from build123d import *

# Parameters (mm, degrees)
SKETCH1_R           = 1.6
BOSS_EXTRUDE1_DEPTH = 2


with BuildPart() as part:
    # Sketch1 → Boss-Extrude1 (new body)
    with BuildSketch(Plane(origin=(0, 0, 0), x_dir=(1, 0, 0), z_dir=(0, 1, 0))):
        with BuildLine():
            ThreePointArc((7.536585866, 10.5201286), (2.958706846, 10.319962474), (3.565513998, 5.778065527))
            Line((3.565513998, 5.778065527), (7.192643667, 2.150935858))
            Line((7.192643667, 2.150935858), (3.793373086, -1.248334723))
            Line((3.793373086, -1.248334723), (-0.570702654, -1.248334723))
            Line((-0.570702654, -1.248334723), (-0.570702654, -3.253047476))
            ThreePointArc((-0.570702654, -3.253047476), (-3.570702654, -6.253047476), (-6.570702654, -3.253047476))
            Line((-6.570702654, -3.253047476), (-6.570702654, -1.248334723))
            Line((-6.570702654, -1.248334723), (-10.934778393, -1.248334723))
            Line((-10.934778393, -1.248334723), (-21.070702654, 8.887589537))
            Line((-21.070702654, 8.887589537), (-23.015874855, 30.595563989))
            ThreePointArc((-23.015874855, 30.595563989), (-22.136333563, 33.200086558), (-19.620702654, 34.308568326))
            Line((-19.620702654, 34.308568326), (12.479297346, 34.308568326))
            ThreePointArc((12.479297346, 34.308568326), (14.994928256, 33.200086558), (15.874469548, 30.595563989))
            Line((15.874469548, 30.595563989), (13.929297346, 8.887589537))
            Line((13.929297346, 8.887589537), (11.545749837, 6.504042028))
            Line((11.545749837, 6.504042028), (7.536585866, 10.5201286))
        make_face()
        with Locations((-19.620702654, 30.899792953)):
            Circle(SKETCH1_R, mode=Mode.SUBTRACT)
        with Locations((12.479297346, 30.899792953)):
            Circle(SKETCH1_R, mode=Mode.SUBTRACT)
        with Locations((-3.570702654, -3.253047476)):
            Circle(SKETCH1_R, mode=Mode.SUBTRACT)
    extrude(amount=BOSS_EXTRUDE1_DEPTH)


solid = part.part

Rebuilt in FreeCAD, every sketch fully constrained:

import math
import FreeCAD as App
import Part
import Sketcher
from FreeCAD import Vector
Q = App.Units.Quantity

doc = App.newDocument("Part")
body = doc.addObject("PartDesign::Body", "Body")

# Sketch on XZ plane
sketch1 = body.newObject("Sketcher::SketchObject", "Sketch")
sketch1.AttachmentSupport = (doc.getObject("XZ_Plane"), [""])
sketch1.MapMode = "FlatFace"
sketch1.addGeometry(Part.ArcOfCircle(Part.Circle(Vector(5.3, -8.3, 0), Vector(0, 0, 1), 3.1), math.radians(125), math.radians(315)), False)
sketch1.addGeometry(Part.LineSegment(Vector(7.5, -10.5, 0), Vector(11.5, -6.5, 0)), False)
sketch1.addGeometry(Part.LineSegment(Vector(11.5, -6.5, 0), Vector(13.9, -8.9, 0)), False)
sketch1.addGeometry(Part.LineSegment(Vector(13.9, -8.9, 0), Vector(15.9, -30.6, 0)), False)
sketch1.addGeometry(Part.ArcOfCircle(Part.Circle(Vector(12.5, -30.9, 0), Vector(0, 0, 1), 3.4), math.radians(-90), math.radians(5)), False)
sketch1.addGeometry(Part.LineSegment(Vector(12.5, -34.3, 0), Vector(-19.6, -34.3, 0)), False)
sketch1.addGeometry(Part.ArcOfCircle(Part.Circle(Vector(-19.6, -30.9, 0), Vector(0, 0, 1), 3.4), math.radians(175), math.radians(270)), False)
sketch1.addGeometry(Part.LineSegment(Vector(-23, -30.6, 0), Vector(-21.1, -8.9, 0)), False)
sketch1.addGeometry(Part.LineSegment(Vector(-21.1, -8.9, 0), Vector(-10.9, 1.2, 0)), False)
sketch1.addGeometry(Part.LineSegment(Vector(-10.9, 1.2, 0), Vector(-6.6, 1.2, 0)), False)
sketch1.addGeometry(Part.LineSegment(Vector(-6.6, 1.2, 0), Vector(-6.6, 3.3, 0)), False)
sketch1.addGeometry(Part.ArcOfCircle(Part.Circle(Vector(-3.6, 3.3, 0), Vector(0, 0, 1), 3), math.radians(0), math.radians(180)), False)
sketch1.addGeometry(Part.LineSegment(Vector(-0.6, 3.3, 0), Vector(-0.6, 1.2, 0)), False)
sketch1.addGeometry(Part.LineSegment(Vector(-0.6, 1.2, 0), Vector(3.8, 1.2, 0)), False)
sketch1.addGeometry(Part.LineSegment(Vector(3.8, 1.2, 0), Vector(7.2, -2.2, 0)), False)
sketch1.addGeometry(Part.LineSegment(Vector(7.2, -2.2, 0), Vector(3.6, -5.8, 0)), False)
sketch1.addGeometry(Part.Circle(Vector(-3.6, 3.3, 0), Vector(0, 0, 1), 1.6), False)
sketch1.addGeometry(Part.Circle(Vector(12.5, -30.9, 0), Vector(0, 0, 1), 1.6), False)
sketch1.addGeometry(Part.Circle(Vector(-19.6, -30.9, 0), Vector(0, 0, 1), 1.6), False)
sketch1.addConstraint(Sketcher.Constraint("Tangent", 0, 2, 1, 1))
sketch1.addConstraint(Sketcher.Constraint("Coincident", 1, 2, 2, 1))
sketch1.addConstraint(Sketcher.Constraint("Coincident", 2, 2, 3, 1))
sketch1.addConstraint(Sketcher.Constraint("Tangent", 3, 2, 4, 2))
sketch1.addConstraint(Sketcher.Constraint("Tangent", 4, 1, 5, 1))
sketch1.addConstraint(Sketcher.Constraint("Tangent", 5, 2, 6, 2))
sketch1.addConstraint(Sketcher.Constraint("Tangent", 6, 1, 7, 1))
sketch1.addConstraint(Sketcher.Constraint("Coincident", 7, 2, 8, 1))
sketch1.addConstraint(Sketcher.Constraint("Coincident", 8, 2, 9, 1))
sketch1.addConstraint(Sketcher.Constraint("Coincident", 9, 2, 10, 1))
sketch1.addConstraint(Sketcher.Constraint("Tangent", 10, 2, 11, 2))
sketch1.addConstraint(Sketcher.Constraint("Tangent", 11, 1, 12, 1))
sketch1.addConstraint(Sketcher.Constraint("Coincident", 12, 2, 13, 1))
sketch1.addConstraint(Sketcher.Constraint("Coincident", 13, 2, 14, 1))
sketch1.addConstraint(Sketcher.Constraint("Coincident", 14, 2, 15, 1))
sketch1.addConstraint(Sketcher.Constraint("Coincident", 15, 2, 0, 1))
sketch1.addConstraint(Sketcher.Constraint("Horizontal", 5))
sketch1.addConstraint(Sketcher.Constraint("Horizontal", 9))
sketch1.addConstraint(Sketcher.Constraint("Vertical", 10))
sketch1.addConstraint(Sketcher.Constraint("Vertical", 12))
sketch1.addConstraint(Sketcher.Constraint("Horizontal", 13))
sketch1.addConstraint(Sketcher.Constraint("Coincident", 16, 3, 11, 3))
sketch1.addConstraint(Sketcher.Constraint("Coincident", 17, 3, 4, 3))
sketch1.addConstraint(Sketcher.Constraint("Coincident", 18, 3, 6, 3))
sketch1.addConstraint(Sketcher.Constraint("Equal", 4, 6))
sketch1.addConstraint(Sketcher.Constraint("Equal", 16, 17))
sketch1.addConstraint(Sketcher.Constraint("Equal", 17, 18))
sketch1.addConstraint(Sketcher.Constraint("Perpendicular", 2, 8))
sketch1.addConstraint(Sketcher.Constraint("Perpendicular", 8, 14))
sketch1.addConstraint(Sketcher.Constraint("Perpendicular", 14, 15))
sketch1.addConstraint(Sketcher.Constraint("Horizontal", 3, 2, 6, 1))
sketch1.addConstraint(Sketcher.Constraint("Horizontal", 2, 2, 7, 2))
sketch1.addConstraint(Sketcher.Constraint("Horizontal", 9, 2, 12, 2))
sketch1.addConstraint(Sketcher.Constraint("Equal", 9, 13))
sketch1.addConstraint(Sketcher.Constraint("Radius", 11, 3.0))
sketch1.addConstraint(Sketcher.Constraint("Diameter", 16, 3.2))
sketch1.addConstraint(Sketcher.Constraint("Angle", 2, Q("-45 deg")))
sketch1.addConstraint(Sketcher.Constraint("DistanceX", 5, 2, 5, 1, 32.1))
sketch1.addConstraint(Sketcher.Constraint("DistanceX", 11, 3, 2, 2, 17.5))
sketch1.addConstraint(Sketcher.Constraint("DistanceX", 7, 2, 11, 3, 17.5))
sketch1.addConstraint(Sketcher.Constraint("Radius", 0, 3.104917))
sketch1.addConstraint(Sketcher.Constraint("Radius", 4, 3.408775))
sketch1.addConstraint(Sketcher.Constraint("DistanceX", 0, 3, 0, 2, 2.197401))
sketch1.addConstraint(Sketcher.Constraint("DistanceY", 15, 2, 13, 2, 7.0264))
sketch1.addConstraint(Sketcher.Constraint("Distance", 1, 5.674711))
sketch1.addConstraint(Sketcher.Constraint("Distance", 3, 21.79495))
sketch1.addConstraint(Sketcher.Constraint("Distance", 8, 14.334362))
sketch1.addConstraint(Sketcher.Constraint("DistanceY", 10, 1, 10, 2, 2.004713))
sketch1.addConstraint(Sketcher.Constraint("DistanceY", 0, 2, -1, 1, 10.520129))
sketch1.addConstraint(Sketcher.Constraint("DistanceX", -1, 1, 1, 2, 11.54575))
sketch1.addConstraint(Sketcher.Constraint("DistanceY", 2, 2, -1, 1, 8.88759))
pad1 = body.newObject("PartDesign::Pad", "Pad")
pad1.Profile = sketch1
pad1.Length = 2
pad1.Reversed = True

doc.recompute()
